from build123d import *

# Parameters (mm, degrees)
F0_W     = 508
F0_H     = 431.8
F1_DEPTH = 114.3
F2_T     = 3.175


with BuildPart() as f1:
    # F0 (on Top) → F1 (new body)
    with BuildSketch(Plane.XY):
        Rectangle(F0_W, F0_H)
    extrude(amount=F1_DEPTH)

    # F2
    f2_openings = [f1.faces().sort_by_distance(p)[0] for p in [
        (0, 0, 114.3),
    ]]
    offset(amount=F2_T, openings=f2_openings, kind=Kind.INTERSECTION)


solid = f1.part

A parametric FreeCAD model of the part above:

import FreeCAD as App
import Part
import Sketcher

V = App.Vector
Q = App.Units.Quantity


def faces_at(feature, points):
    """Names of the faces that lie closest to the given points."""
    faces = feature.Shape.Faces
    near = lambda p: min(range(len(faces)), key=lambda i: faces[i].distToShape(Part.Vertex(*p))[0])
    return sorted({f"Face{near(p) + 1}" for p in points})

doc = App.newDocument("Part")
body = doc.addObject("PartDesign::Body", "Body")

sketch1 = body.newObject("Sketcher::SketchObject", "Sketch")
sketch1.AttachmentSupport = (doc.getObject("XY_Plane"), [""])
sketch1.MapMode = "FlatFace"
sketch1.addGeometry(Part.LineSegment(V(-254, 215.9, 0), V(-254, -215.9, 0)), False)
sketch1.addGeometry(Part.LineSegment(V(-254, -215.9, 0), V(254, -215.9, 0)), False)
sketch1.addGeometry(Part.LineSegment(V(254, -215.9, 0), V(254, 215.9, 0)), False)
sketch1.addGeometry(Part.LineSegment(V(254, 215.9, 0), V(-254, 215.9, 0)), False)
sketch1.addConstraint(Sketcher.Constraint("Coincident", 0, 2, 1, 1))
sketch1.addConstraint(Sketcher.Constraint("Coincident", 1, 2, 2, 1))
sketch1.addConstraint(Sketcher.Constraint("Coincident", 2, 2, 3, 1))
sketch1.addConstraint(Sketcher.Constraint("Coincident", 3, 2, 0, 1))
sketch1.addConstraint(Sketcher.Constraint("Vertical", 0))
sketch1.addConstraint(Sketcher.Constraint("Horizontal", 1))
sketch1.addConstraint(Sketcher.Constraint("Vertical", 2))
sketch1.addConstraint(Sketcher.Constraint("Horizontal", 3))
sketch1.addConstraint(Sketcher.Constraint("Symmetric", 0, 2, 2, 2, -1, 1))
sketch1.addConstraint(Sketcher.Constraint("DistanceX", 1, 1, 1, 2, Q("20 in")))
sketch1.addConstraint(Sketcher.Constraint("DistanceY", 0, 2, 0, 1, Q("17 in")))
pad1 = body.newObject("PartDesign::Pad", "Pad")
pad1.Profile = sketch1
pad1.Length = Q("4.5 in")
doc.recompute()

thickness = body.newObject("PartDesign::Thickness", "Thickness")
thickness.Base = (pad1, faces_at(pad1, [(0, 0, 114.3)]))
thickness.Value = Q("0.125 in")
thickness.Reversed = False
thickness.Join = "Intersection"

doc.recompute()
